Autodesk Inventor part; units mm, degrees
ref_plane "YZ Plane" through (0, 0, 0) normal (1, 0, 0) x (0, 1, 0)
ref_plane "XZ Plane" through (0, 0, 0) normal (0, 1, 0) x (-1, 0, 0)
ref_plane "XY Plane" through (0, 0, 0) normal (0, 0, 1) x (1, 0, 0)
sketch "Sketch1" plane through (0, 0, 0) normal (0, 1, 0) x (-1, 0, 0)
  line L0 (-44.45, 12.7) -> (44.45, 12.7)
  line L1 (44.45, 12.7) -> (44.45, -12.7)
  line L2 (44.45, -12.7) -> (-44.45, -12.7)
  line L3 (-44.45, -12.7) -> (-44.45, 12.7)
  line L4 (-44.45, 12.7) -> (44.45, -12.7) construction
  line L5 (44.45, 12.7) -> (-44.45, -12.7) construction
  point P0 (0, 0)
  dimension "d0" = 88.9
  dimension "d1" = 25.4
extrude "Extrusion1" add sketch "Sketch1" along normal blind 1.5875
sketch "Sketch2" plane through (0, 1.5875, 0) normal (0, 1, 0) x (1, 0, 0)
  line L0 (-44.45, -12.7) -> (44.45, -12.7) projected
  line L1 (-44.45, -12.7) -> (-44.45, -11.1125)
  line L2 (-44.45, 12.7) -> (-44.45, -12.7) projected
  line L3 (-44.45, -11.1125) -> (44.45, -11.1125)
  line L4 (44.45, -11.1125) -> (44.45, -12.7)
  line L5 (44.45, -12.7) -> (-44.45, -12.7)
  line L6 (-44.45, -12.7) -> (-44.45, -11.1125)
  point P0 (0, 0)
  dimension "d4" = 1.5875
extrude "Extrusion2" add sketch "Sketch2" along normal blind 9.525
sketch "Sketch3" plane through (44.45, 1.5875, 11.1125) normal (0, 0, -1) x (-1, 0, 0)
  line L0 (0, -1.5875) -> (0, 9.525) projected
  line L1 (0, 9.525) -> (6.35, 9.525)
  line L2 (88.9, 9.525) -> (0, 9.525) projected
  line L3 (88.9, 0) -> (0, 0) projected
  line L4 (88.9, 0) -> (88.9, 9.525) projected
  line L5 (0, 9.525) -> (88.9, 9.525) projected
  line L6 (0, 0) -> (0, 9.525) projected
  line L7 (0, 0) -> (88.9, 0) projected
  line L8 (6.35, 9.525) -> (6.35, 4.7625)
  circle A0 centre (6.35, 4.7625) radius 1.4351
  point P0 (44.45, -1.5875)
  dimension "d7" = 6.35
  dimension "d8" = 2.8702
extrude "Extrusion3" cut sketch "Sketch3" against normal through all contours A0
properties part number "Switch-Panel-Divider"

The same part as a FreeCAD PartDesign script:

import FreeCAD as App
import Part
import Sketcher
Q = App.Units.Quantity


def add_polygon(sketch, points):
    """Adds a closed chain of lines whose ends are joined by coincident constraints."""
    first, n = sketch.GeometryCount, len(points)
    for a, b in zip(points, points[1:] + points[:1]):
        sketch.addGeometry(Part.LineSegment(App.Vector(*a, 0), App.Vector(*b, 0)), False)
    for i in range(n):
        sketch.addConstraint(Sketcher.Constraint("Coincident", first + i, 2, first + (i + 1) % n, 1))

doc = App.newDocument("Part")
body = doc.addObject("PartDesign::Body", "Body")

# Sketch on XZ plane
sketch1 = doc.addObject("Sketcher::SketchObject", "Sketch")
body.addObject(sketch1)
sketch1.AttachmentSupport = (doc.XZ_Plane, [""])
sketch1.MapMode = "FlatFace"
add_polygon(sketch1, [(-44.45, 12.7), (44.45, 12.7), (44.45, -12.7), (-44.45, -12.7)])  # lines 0-3
sketch1.addConstraint([
    Sketcher.Constraint("Horizontal", 0),
    Sketcher.Constraint("Vertical", 1),
    Sketcher.Constraint("Horizontal", 2),
    Sketcher.Constraint("Vertical", 3),
    Sketcher.Constraint("Symmetric", 0, 2, 2, 2, -1, 1),
    Sketcher.Constraint("DistanceY", 1, 2, 1, 1, Q("1 in")),
    Sketcher.Constraint("DistanceX", 0, 1, 0, 2, Q("3.5 in")),
])
pad1 = doc.addObject("PartDesign::Pad", "Pad")
body.addObject(pad1)
pad1.Profile = sketch1
pad1.Length = Q("0.0625 in")
pad1.Reversed = True

# Sketch on XZ plane
sketch2 = doc.addObject("Sketcher::SketchObject", "Sketch001")
body.addObject(sketch2)
sketch2.AttachmentSupport = (doc.XZ_Plane, [""])
sketch2.MapMode = "FlatFace"
sketch2.AttachmentOffset = App.Placement(App.Vector(0, 0, -0.0625 * 25.4), App.Rotation())
add_polygon(sketch2, [(-44.45, 11.1125), (-44.45, 12.7), (44.45, 12.7), (44.45, 11.1125)])  # lines 0-3
sketch2.addConstraint([
    Sketcher.Constraint("Vertical", 0),
    Sketcher.Constraint("Horizontal", 1),
    Sketcher.Constraint("Vertical", 2),
    Sketcher.Constraint("Horizontal", 3),
    Sketcher.Constraint("DistanceY", 0, 1, 0, 2, Q("0.0625 in")),
    Sketcher.Constraint("DistanceX", 1, 1, 1, 2, Q("3.5 in")),
    Sketcher.Constraint("DistanceY", -1, 1, 0, 2, Q("0.5 in")),
    Sketcher.Constraint("DistanceX", 0, 2, -1, 1, Q("1.75 in")),
])
pad2 = doc.addObject("PartDesign::Pad", "Pad001")
body.addObject(pad2)
pad2.Profile = sketch2
pad2.Length = Q("0.375 in")
pad2.Reversed = True

# Sketch on XY plane
sketch3 = doc.addObject("Sketcher::SketchObject", "Sketch002")
body.addObject(sketch3)
sketch3.AttachmentSupport = (doc.XY_Plane, [""])
sketch3.MapMode = "FlatFace"
sketch3.AttachmentOffset = App.Placement(App.Vector(0, 0, 0.4375 * 25.4), App.Rotation())
sketch3.addGeometry(Part.Circle(App.Vector(38.1, 6.35, 0), App.Vector(0, 0, 1), 1.4351), False)
sketch3.addConstraint([
    Sketcher.Constraint("Diameter", 0, Q("0.113 in")),
    Sketcher.Constraint("DistanceY", -1, 1, 0, 3, Q("0.25 in")),
    Sketcher.Constraint("DistanceX", -1, 1, 0, 3, Q("1.5 in")),
])
pocket1 = doc.addObject("PartDesign::Pocket", "Pocket")
body.addObject(pocket1)
pocket1.Profile = sketch3
pocket1.Type = "ThroughAll"
pocket1.Reversed = True

doc.recompute()
